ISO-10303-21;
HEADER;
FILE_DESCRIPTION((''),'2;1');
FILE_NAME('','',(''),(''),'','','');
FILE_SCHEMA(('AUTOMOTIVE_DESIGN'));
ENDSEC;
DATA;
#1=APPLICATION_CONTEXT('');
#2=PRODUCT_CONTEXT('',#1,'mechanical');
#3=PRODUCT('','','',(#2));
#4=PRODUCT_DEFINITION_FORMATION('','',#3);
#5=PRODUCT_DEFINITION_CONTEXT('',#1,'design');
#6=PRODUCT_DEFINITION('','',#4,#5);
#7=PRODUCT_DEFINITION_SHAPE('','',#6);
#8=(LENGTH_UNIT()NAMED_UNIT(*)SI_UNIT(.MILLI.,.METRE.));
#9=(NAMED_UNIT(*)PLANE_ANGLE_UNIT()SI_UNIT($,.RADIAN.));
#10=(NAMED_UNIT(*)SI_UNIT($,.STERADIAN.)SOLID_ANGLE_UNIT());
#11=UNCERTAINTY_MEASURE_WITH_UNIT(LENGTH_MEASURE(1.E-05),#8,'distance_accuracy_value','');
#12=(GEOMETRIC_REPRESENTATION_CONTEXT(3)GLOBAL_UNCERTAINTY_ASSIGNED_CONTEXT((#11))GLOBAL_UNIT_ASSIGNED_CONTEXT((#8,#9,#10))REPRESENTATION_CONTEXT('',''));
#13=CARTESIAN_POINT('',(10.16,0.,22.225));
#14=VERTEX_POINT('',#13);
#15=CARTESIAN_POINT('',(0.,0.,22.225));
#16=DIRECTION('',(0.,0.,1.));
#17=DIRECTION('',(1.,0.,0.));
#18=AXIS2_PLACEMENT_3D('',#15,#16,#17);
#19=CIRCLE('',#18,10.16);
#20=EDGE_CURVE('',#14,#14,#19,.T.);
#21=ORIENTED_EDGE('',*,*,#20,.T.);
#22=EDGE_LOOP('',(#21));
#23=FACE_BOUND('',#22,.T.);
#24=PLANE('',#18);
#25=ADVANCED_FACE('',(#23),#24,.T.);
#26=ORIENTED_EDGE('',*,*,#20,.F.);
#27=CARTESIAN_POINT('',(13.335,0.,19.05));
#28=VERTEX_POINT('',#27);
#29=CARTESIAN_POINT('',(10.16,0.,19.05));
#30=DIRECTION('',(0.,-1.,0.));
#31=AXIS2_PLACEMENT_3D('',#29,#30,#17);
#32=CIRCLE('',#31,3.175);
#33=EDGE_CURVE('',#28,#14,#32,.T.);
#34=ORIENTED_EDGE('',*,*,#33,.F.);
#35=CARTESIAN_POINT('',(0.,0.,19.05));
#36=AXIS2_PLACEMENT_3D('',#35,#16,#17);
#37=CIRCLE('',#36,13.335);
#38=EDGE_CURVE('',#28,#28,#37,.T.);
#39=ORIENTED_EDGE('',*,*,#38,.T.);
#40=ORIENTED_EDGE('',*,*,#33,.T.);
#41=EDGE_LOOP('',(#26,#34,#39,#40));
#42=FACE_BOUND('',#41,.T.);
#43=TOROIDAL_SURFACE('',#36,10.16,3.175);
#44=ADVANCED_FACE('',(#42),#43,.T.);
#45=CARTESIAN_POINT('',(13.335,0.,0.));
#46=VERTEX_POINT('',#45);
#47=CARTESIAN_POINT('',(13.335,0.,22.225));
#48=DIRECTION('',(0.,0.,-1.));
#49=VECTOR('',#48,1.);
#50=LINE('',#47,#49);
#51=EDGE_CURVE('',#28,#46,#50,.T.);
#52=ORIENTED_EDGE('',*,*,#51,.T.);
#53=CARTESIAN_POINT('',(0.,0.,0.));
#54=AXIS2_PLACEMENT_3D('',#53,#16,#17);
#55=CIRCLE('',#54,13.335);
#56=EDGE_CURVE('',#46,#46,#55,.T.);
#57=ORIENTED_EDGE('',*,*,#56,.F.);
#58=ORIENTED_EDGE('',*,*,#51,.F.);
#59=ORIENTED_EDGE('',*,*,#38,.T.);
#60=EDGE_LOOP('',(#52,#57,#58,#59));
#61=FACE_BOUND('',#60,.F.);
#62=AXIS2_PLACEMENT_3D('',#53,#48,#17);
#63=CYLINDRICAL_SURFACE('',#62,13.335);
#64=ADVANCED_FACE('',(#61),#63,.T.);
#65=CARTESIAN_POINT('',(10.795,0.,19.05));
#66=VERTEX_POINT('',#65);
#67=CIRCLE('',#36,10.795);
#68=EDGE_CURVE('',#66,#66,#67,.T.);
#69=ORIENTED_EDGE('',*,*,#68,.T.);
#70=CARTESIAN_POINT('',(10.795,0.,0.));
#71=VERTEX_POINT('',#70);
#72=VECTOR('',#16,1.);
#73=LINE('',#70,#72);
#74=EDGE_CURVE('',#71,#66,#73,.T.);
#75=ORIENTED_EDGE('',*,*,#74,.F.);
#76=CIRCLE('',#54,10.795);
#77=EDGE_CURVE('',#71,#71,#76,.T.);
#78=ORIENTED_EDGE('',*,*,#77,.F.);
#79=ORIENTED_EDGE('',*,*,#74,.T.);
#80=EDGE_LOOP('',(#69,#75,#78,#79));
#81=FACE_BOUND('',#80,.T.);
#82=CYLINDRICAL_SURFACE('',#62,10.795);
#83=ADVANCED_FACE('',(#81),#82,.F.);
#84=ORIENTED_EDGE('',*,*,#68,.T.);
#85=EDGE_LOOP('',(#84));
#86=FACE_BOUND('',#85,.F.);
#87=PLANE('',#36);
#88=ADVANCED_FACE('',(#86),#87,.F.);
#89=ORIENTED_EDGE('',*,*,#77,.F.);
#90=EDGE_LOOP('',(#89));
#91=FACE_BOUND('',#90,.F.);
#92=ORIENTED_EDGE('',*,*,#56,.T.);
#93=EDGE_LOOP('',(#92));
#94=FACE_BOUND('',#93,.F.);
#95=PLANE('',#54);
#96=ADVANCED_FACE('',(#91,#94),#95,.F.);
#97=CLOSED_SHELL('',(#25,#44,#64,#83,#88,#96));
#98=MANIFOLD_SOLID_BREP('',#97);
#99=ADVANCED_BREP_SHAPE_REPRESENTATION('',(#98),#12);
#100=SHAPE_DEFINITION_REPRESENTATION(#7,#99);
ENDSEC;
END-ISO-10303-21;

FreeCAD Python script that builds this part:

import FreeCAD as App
import Part
import Sketcher
from FreeCAD import Vector
Q = App.Units.Quantity


def edges_at(feature, points):
    """Names of the edges that pass closest to the given points."""
    edges = feature.Shape.Edges
    near = lambda p: min(range(len(edges)), key=lambda i: edges[i].distToShape(Part.Vertex(*p))[0])
    return sorted({f"Edge{near(p) + 1}" for p in points})

doc = App.newDocument("Part")
params = doc.addObject("Spreadsheet::Sheet", "Params")
for row, (alias, value) in enumerate([
    ("sketch1_diameter", "1.05 in"),
    ("sketch1_diameter2", "0.85 in"),
    ("pad1_length", "0.75 in"),
    ("sketch2_diameter", "1.05 in"),
    ("pad2_length", "0.125 in"),
    ("fillet_radius", "0.125 in"),
], start=1):
    params.set(f"A{row}", alias)
    params.set(f"B{row}", "=" + value)
    params.setAlias(f"B{row}", alias)

body = doc.addObject("PartDesign::Body", "Body")

# Sketch on XY plane
sketch1 = body.newObject("Sketcher::SketchObject", "Sketch")
sketch1.AttachmentSupport = (doc.getObject("XY_Plane"), [""])
sketch1.MapMode = "FlatFace"
sketch1.addGeometry(Part.Circle(Vector(0, 0, 0), Vector(0, 0, 1), 13), False)
sketch1.addGeometry(Part.Circle(Vector(0, 0, 0), Vector(0, 0, 1), 11), False)
sketch1.addConstraint(Sketcher.Constraint("Coincident", 0, 3, -1, 1))
sketch1.addConstraint(Sketcher.Constraint("Coincident", 1, 3, -1, 1))
sketch1.addConstraint(Sketcher.Constraint("Diameter", 0, Q("1.05 in")))
sketch1.addConstraint(Sketcher.Constraint("Diameter", 1, Q("0.85 in")))
sketch1.setExpression("Constraints[2]", "Params.sketch1_diameter")
sketch1.setExpression("Constraints[3]", "Params.sketch1_diameter2")
pad1 = body.newObject("PartDesign::Pad", "Pad")
pad1.Profile = sketch1
pad1.setExpression("Length", "Params.pad1_length")

# Sketch on XY plane
sketch2 = body.newObject("Sketcher::SketchObject", "Sketch001")
sketch2.AttachmentSupport = (doc.getObject("XY_Plane"), [""])
sketch2.MapMode = "FlatFace"
sketch2.AttachmentOffset = App.Placement(Vector(0, 0, 0.75 * 25.4), App.Rotation())
sketch2.addGeometry(Part.Circle(Vector(0, 0, 0), Vector(0, 0, 1), 13), False)
sketch2.addConstraint(Sketcher.Constraint("Coincident", 0, 3, -1, 1))
sketch2.addConstraint(Sketcher.Constraint("Diameter", 0, Q("1.05 in")))
sketch2.setExpression("Constraints[1]", "Params.sketch2_diameter")
pad2 = body.newObject("PartDesign::Pad", "Pad001")
pad2.Profile = sketch2
pad2.setExpression("Length", "Params.pad2_length")
doc.recompute()

fillet = body.newObject("PartDesign::Fillet", "Fillet")
fillet.Base = (pad2, edges_at(pad2, [(-13.335, 0, 22.225)]))
fillet.setExpression("Radius", "Params.fillet_radius")

doc.recompute()
